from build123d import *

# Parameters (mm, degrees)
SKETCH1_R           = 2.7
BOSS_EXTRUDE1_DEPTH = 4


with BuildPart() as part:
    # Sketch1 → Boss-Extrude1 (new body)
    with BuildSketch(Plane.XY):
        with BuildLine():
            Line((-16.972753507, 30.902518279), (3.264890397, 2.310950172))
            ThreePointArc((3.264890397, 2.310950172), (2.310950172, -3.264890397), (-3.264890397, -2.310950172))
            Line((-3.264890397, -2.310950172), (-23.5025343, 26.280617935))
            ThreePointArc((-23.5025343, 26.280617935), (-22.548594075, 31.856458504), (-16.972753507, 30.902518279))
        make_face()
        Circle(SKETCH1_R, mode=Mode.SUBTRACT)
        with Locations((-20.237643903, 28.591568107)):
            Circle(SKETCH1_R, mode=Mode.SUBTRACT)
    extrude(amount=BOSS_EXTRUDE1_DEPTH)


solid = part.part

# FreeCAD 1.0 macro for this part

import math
import FreeCAD as App
import Part
import Sketcher
from FreeCAD import Vector
Q = App.Units.Quantity

doc = App.newDocument("Part")
params = doc.addObject("Spreadsheet::Sheet", "Params")
for row, (alias, value) in enumerate([
    ("sketch1_radius", "4 mm"),
    ("sketch1_diameter", "5.4 mm"),
    ("pad1_length", "4 mm"),
], start=1):
    params.set(f"A{row}", alias)
    params.set(f"B{row}", "=" + value)
    params.setAlias(f"B{row}", alias)

body = doc.addObject("PartDesign::Body", "Body")

# Sketch on XY plane
sketch1 = body.newObject("Sketcher::SketchObject", "Sketch")
sketch1.AttachmentSupport = (doc.getObject("XY_Plane"), [""])
sketch1.MapMode = "FlatFace"
sketch1.addGeometry([
    Part.LineSegment(Vector(3.3, 2.3, 0), Vector(-17, 30.9, 0)),  # 0
    Part.ArcOfCircle(Part.Circle(Vector(-20.2, 28.6, 0), Vector(0, 0, 1), 4), math.radians(35), math.radians(215)),  # 1
    Part.LineSegment(Vector(-23.5, 26.3, 0), Vector(-3.3, -2.3, 0)),  # 2
    Part.ArcOfCircle(Part.Circle(Vector(0, 0, 0), Vector(0, 0, 1), 4), math.radians(-145), math.radians(35)),  # 3
    Part.Circle(Vector(0, 0, 0), Vector(0, 0, 1), 2.7),  # 4
    Part.Circle(Vector(-20.2, 28.6, 0), Vector(0, 0, 1), 2.7),  # 5
], False)
sketch1.addConstraint([
    Sketcher.Constraint("Tangent", 0, 2, 1, 1),
    Sketcher.Constraint("Tangent", 1, 2, 2, 1),
    Sketcher.Constraint("Tangent", 2, 2, 3, 1),
    Sketcher.Constraint("Tangent", 3, 2, 0, 1),
    Sketcher.Constraint("Coincident", 3, 3, -1, 1),
    Sketcher.Constraint("Coincident", 4, 3, -1, 1),
    Sketcher.Constraint("Coincident", 5, 3, 1, 3),
    Sketcher.Constraint("Equal", 1, 3),
    Sketcher.Constraint("Equal", 4, 5),
    Sketcher.Constraint("Radius", 1, Q("4 mm")),
    Sketcher.Constraint("Diameter", 4, Q("5.4 mm")),
    Sketcher.Constraint("DistanceY", 1, 2, 0, 2, Q("4.6219 mm")),
    Sketcher.Constraint("Distance", 0, Q("35.029131 mm")),
])
sketch1.setExpression("Constraints[9]", "Params.sketch1_radius")
sketch1.setExpression("Constraints[10]", "Params.sketch1_diameter")
pad1 = body.newObject("PartDesign::Pad", "Pad")
pad1.Profile = sketch1
pad1.setExpression("Length", "Params.pad1_length")

doc.recompute()
